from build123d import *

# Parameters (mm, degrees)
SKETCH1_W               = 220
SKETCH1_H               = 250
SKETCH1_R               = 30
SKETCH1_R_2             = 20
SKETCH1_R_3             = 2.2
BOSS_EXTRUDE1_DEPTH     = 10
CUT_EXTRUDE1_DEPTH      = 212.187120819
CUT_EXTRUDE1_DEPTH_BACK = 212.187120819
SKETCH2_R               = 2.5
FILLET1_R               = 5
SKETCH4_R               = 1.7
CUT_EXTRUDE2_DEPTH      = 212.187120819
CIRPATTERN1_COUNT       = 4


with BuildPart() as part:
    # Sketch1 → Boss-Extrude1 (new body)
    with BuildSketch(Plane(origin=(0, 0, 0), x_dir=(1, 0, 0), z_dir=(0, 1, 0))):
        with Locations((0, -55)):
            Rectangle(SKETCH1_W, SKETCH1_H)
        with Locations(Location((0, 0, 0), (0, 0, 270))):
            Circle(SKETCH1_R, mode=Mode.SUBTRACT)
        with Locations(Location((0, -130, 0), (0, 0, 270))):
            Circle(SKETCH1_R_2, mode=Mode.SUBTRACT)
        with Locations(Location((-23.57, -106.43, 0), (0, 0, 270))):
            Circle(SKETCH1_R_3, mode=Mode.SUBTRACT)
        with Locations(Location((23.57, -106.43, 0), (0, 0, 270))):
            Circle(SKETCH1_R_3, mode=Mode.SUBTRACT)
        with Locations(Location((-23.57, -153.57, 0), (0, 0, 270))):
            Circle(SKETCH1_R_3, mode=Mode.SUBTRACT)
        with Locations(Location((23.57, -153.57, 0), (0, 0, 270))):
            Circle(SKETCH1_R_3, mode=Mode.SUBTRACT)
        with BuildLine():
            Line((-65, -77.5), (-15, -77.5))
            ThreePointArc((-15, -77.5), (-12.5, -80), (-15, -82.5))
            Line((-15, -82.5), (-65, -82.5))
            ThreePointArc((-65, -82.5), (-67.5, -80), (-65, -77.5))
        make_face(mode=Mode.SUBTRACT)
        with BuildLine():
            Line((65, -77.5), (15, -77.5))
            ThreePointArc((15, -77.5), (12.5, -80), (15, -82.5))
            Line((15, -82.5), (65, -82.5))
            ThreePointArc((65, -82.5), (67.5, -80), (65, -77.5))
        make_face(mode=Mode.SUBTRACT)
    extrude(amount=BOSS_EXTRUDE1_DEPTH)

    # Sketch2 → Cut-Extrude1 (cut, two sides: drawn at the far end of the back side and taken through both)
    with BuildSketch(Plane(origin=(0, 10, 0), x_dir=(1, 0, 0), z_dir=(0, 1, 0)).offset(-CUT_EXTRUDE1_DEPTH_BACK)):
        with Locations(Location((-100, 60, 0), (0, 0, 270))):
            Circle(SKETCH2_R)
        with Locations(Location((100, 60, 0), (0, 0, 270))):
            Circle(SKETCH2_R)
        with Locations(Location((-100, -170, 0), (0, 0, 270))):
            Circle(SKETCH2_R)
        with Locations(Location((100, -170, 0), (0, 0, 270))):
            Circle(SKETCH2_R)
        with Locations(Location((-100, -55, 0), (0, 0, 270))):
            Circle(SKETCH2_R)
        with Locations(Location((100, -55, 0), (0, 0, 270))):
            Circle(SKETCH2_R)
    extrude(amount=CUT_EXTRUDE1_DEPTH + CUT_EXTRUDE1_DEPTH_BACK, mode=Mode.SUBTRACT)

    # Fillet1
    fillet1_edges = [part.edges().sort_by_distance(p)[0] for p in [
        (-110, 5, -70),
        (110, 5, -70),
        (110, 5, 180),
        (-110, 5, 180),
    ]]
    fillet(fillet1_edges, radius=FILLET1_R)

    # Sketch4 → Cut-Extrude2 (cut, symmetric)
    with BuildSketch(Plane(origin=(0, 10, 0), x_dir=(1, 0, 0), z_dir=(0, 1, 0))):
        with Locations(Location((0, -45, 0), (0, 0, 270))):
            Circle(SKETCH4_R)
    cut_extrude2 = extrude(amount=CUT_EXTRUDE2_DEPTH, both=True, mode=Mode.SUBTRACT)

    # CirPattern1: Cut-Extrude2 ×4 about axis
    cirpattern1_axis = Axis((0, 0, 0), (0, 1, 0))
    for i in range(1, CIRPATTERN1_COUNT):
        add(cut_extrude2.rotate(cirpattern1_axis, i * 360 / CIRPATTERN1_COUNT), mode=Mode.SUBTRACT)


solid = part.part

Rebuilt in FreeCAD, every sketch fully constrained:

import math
import FreeCAD as App
import Part
import Sketcher

V = App.Vector
Q = App.Units.Quantity


def edges_at(feature, points):
    """Names of the edges that pass closest to the given points."""
    edges = feature.Shape.Edges
    near = lambda p: min(range(len(edges)), key=lambda i: edges[i].distToShape(Part.Vertex(*p))[0])
    return sorted({f"Edge{near(p) + 1}" for p in points})


def add_polygon(sketch, points):
    """Adds a closed chain of lines whose ends are joined by coincident constraints."""
    first, n = sketch.GeometryCount, len(points)
    for a, b in zip(points, points[1:] + points[:1]):
        sketch.addGeometry(Part.LineSegment(App.Vector(*a, 0), App.Vector(*b, 0)), False)
    for i in range(n):
        sketch.addConstraint(Sketcher.Constraint("Coincident", first + i, 2, first + (i + 1) % n, 1))

doc = App.newDocument("Part")
params = doc.addObject("Spreadsheet::Sheet", "Params")
for row, (alias, value) in enumerate([
    ("sketch1_diameter", "40 mm"),
    ("sketch1_diameter2", "60 mm"),
    ("sketch1_diameter3", "4.4 mm"),
    ("sketch1_radius", "2.5 mm"),
    ("sketch1_width", "220 mm"),
    ("pad1_length", "10 mm"),
    ("sketch2_diameter", "5 mm"),
    ("fillet_radius", "5 mm"),
    ("sketch3_diameter", "3.4 mm"),
    ("pocket2_length", "424.374242 mm"),
], start=1):
    params.set(f"A{row}", alias)
    params.set(f"B{row}", "=" + value)
    params.setAlias(f"B{row}", alias)

body = doc.addObject("PartDesign::Body", "Body")

# Sketch on XZ plane
sketch1 = body.newObject("Sketcher::SketchObject", "Sketch")
sketch1.AttachmentSupport = (doc.getObject("XZ_Plane"), [""])
sketch1.MapMode = "FlatFace"
add_polygon(sketch1, [(-110, -70), (-110, 180), (110, 180), (110, -70)])  # lines 0-3
sketch1.addGeometry(Part.Circle(V(-23.6, 153.6, 0), V(0, 0, 1), 2.2), False)  # 4
sketch1.addGeometry(Part.ArcOfCircle(Part.Circle(V(-65, 80, 0), V(0, 0, 1), 2.5), math.radians(90), math.radians(270)), False)  # 5
sketch1.addGeometry(Part.LineSegment(V(-65, 77.5, 0), V(-15, 77.5, 0)), False)  # 6
sketch1.addGeometry(Part.ArcOfCircle(Part.Circle(V(-15, 80, 0), V(0, 0, 1), 2.5), math.radians(-90), math.radians(90)), False)  # 7
sketch1.addGeometry(Part.LineSegment(V(-15, 82.5, 0), V(-65, 82.5, 0)), False)  # 8
sketch1.addGeometry(Part.Circle(V(-23.6, 106.4, 0), V(0, 0, 1), 2.2), False)  # 9
sketch1.addGeometry(Part.Circle(V(23.6, 153.6, 0), V(0, 0, 1), 2.2), False)  # 10
sketch1.addGeometry(Part.Circle(V(0, 130, 0), V(0, 0, 1), 20), False)  # 11
sketch1.addGeometry(Part.Circle(V(23.6, 106.4, 0), V(0, 0, 1), 2.2), False)  # 12
sketch1.addGeometry(Part.LineSegment(V(15, 77.5, 0), V(65, 77.5, 0)), False)  # 13
sketch1.addGeometry(Part.ArcOfCircle(Part.Circle(V(65, 80, 0), V(0, 0, 1), 2.5), math.radians(-90), math.radians(90)), False)  # 14
sketch1.addGeometry(Part.LineSegment(V(65, 82.5, 0), V(15, 82.5, 0)), False)  # 15
sketch1.addGeometry(Part.ArcOfCircle(Part.Circle(V(15, 80, 0), V(0, 0, 1), 2.5), math.radians(90), math.radians(270)), False)  # 16
sketch1.addGeometry(Part.Circle(V(0, 0, 0), V(0, 0, 1), 30), False)  # 17
sketch1.addConstraint(Sketcher.Constraint("Tangent", 5, 2, 6, 1))
sketch1.addConstraint(Sketcher.Constraint("Tangent", 6, 2, 7, 1))
sketch1.addConstraint(Sketcher.Constraint("Tangent", 7, 2, 8, 1))
sketch1.addConstraint(Sketcher.Constraint("Tangent", 8, 2, 5, 1))
sketch1.addConstraint(Sketcher.Constraint("Tangent", 13, 2, 14, 1))
sketch1.addConstraint(Sketcher.Constraint("Tangent", 14, 2, 15, 1))
sketch1.addConstraint(Sketcher.Constraint("Tangent", 15, 2, 16, 1))
sketch1.addConstraint(Sketcher.Constraint("Tangent", 16, 2, 13, 1))
sketch1.addConstraint(Sketcher.Constraint("Vertical", 0))
sketch1.addConstraint(Sketcher.Constraint("Horizontal", 1))
sketch1.addConstraint(Sketcher.Constraint("Vertical", 2))
sketch1.addConstraint(Sketcher.Constraint("Horizontal", 3))
sketch1.addConstraint(Sketcher.Constraint("Horizontal", 6))
sketch1.addConstraint(Sketcher.Constraint("Horizontal", 8))
sketch1.addConstraint(Sketcher.Constraint("Horizontal", 13))
sketch1.addConstraint(Sketcher.Constraint("Horizontal", 15))
sketch1.addConstraint(Sketcher.Constraint("Coincident", 17, 3, -1, 1))
sketch1.addConstraint(Sketcher.Constraint("Equal", 4, 9))
sketch1.addConstraint(Sketcher.Constraint("Equal", 9, 10))
sketch1.addConstraint(Sketcher.Constraint("Equal", 10, 12))
sketch1.addConstraint(Sketcher.Constraint("Equal", 7, 14))
sketch1.addConstraint(Sketcher.Constraint("Symmetric", 4, 3, 10, 3, -2))
sketch1.addConstraint(Sketcher.Constraint("Symmetric", 9, 3, 12, 3, -2))
sketch1.addConstraint(Sketcher.Constraint("Symmetric", 5, 3, 14, 3, -2))
sketch1.addConstraint(Sketcher.Constraint("PointOnObject", 11, 3, -2))
sketch1.addConstraint(Sketcher.Constraint("Vertical", 4, 3, 9, 3))
sketch1.addConstraint(Sketcher.Constraint("Equal", 8, 13))
sketch1.addConstraint(Sketcher.Constraint("Diameter", 11, Q("40 mm")))
sketch1.addConstraint(Sketcher.Constraint("Diameter", 17, Q("60 mm")))
sketch1.addConstraint(Sketcher.Constraint("Diameter", 4, Q("4.4 mm")))
sketch1.addConstraint(Sketcher.Constraint("Radius", 5, Q("2.5 mm")))
sketch1.addConstraint(Sketcher.Constraint("DistanceX", 1, 1, 1, 2, Q("220 mm")))
sketch1.addConstraint(Sketcher.Constraint("DistanceX", 6, 1, 6, 2, Q("50 mm")))
sketch1.addConstraint(Sketcher.Constraint("DistanceY", 0, 1, 0, 2, Q("250 mm")))
sketch1.addConstraint(Sketcher.Constraint("DistanceX", 5, 3, -1, 1, Q("65 mm")))
sketch1.addConstraint(Sketcher.Constraint("DistanceY", -1, 1, 5, 3, Q("80 mm")))
sketch1.addConstraint(Sketcher.Constraint("DistanceY", -1, 1, 11, 3, Q("130 mm")))
sketch1.addConstraint(Sketcher.Constraint("DistanceX", 0, 2, -1, 1, Q("110 mm")))
sketch1.addConstraint(Sketcher.Constraint("DistanceY", -1, 1, 0, 2, Q("180 mm")))
sketch1.addConstraint(Sketcher.Constraint("DistanceX", 4, 3, -1, 1, Q("23.57 mm")))
sketch1.addConstraint(Sketcher.Constraint("DistanceY", -1, 1, 4, 3, Q("153.57 mm")))
sketch1.addConstraint(Sketcher.Constraint("DistanceY", -1, 1, 9, 3, Q("106.43 mm")))
sketch1.setExpression("Constraints[31]", "Params.sketch1_diameter")
sketch1.setExpression("Constraints[32]", "Params.sketch1_diameter2")
sketch1.setExpression("Constraints[33]", "Params.sketch1_diameter3")
sketch1.setExpression("Constraints[34]", "Params.sketch1_radius")
sketch1.setExpression("Constraints[35]", "Params.sketch1_width")
pad1 = body.newObject("PartDesign::Pad", "Pad")
pad1.Profile = sketch1
pad1.setExpression("Length", "Params.pad1_length")
pad1.Reversed = True

# Sketch on XZ plane
sketch2 = body.newObject("Sketcher::SketchObject", "Sketch001")
sketch2.AttachmentSupport = (doc.getObject("XZ_Plane"), [""])
sketch2.MapMode = "FlatFace"
sketch2.AttachmentOffset = App.Placement(V(0, 0, -10), App.Rotation())
sketch2.addGeometry(Part.Circle(V(-100, -60, 0), V(0, 0, 1), 2.5), False)
sketch2.addGeometry(Part.Circle(V(100, -60, 0), V(0, 0, 1), 2.5), False)
sketch2.addGeometry(Part.Circle(V(-100, 170, 0), V(0, 0, 1), 2.5), False)
sketch2.addGeometry(Part.Circle(V(100, 170, 0), V(0, 0, 1), 2.5), False)
sketch2.addGeometry(Part.Circle(V(-100, 55, 0), V(0, 0, 1), 2.5), False)
sketch2.addGeometry(Part.Circle(V(100, 55, 0), V(0, 0, 1), 2.5), False)
sketch2.addConstraint(Sketcher.Constraint("Equal", 0, 1))
sketch2.addConstraint(Sketcher.Constraint("Equal", 1, 2))
sketch2.addConstraint(Sketcher.Constraint("Equal", 2, 3))
sketch2.addConstraint(Sketcher.Constraint("Equal", 3, 4))
sketch2.addConstraint(Sketcher.Constraint("Equal", 4, 5))
sketch2.addConstraint(Sketcher.Constraint("Symmetric", 0, 3, 1, 3, -2))
sketch2.addConstraint(Sketcher.Constraint("Symmetric", 2, 3, 3, 3, -2))
sketch2.addConstraint(Sketcher.Constraint("Symmetric", 4, 3, 5, 3, -2))
sketch2.addConstraint(Sketcher.Constraint("Vertical", 0, 3, 2, 3))
sketch2.addConstraint(Sketcher.Constraint("Vertical", 2, 3, 4, 3))
sketch2.addConstraint(Sketcher.Constraint("Diameter", 0, Q("5 mm")))
sketch2.addConstraint(Sketcher.Constraint("DistanceX", 0, 3, -1, 1, Q("100 mm")))
sketch2.addConstraint(Sketcher.Constraint("DistanceY", 0, 3, -1, 1, Q("60 mm")))
sketch2.addConstraint(Sketcher.Constraint("DistanceY", -1, 1, 2, 3, Q("170 mm")))
sketch2.addConstraint(Sketcher.Constraint("DistanceY", -1, 1, 4, 3, Q("55 mm")))
sketch2.setExpression("Constraints[10]", "Params.sketch2_diameter")
pocket1 = body.newObject("PartDesign::Pocket", "Pocket")
pocket1.Profile = sketch2
pocket1.Type = "ThroughAll"
pocket1.Midplane = True
doc.recompute()

fillet = body.newObject("PartDesign::Fillet", "Fillet")
fillet.Base = (pocket1, edges_at(pocket1, [
    (-110, 5, -70),
    (110, 5, -70),
    (110, 5, 180),
    (-110, 5, 180),
]))
fillet.setExpression("Radius", "Params.fillet_radius")

# Sketch on XZ plane
sketch3 = body.newObject("Sketcher::SketchObject", "Sketch002")
sketch3.AttachmentSupport = (doc.getObject("XZ_Plane"), [""])
sketch3.MapMode = "FlatFace"
sketch3.AttachmentOffset = App.Placement(V(0, 0, -10), App.Rotation())
sketch3.addGeometry(Part.Circle(V(0, 45, 0), V(0, 0, 1), 1.7), False)
sketch3.addConstraint(Sketcher.Constraint("PointOnObject", 0, 3, -2))
sketch3.addConstraint(Sketcher.Constraint("Diameter", 0, Q("3.4 mm")))
sketch3.addConstraint(Sketcher.Constraint("DistanceY", -1, 1, 0, 3, Q("45 mm")))
sketch3.setExpression("Constraints[1]", "Params.sketch3_diameter")
pocket2 = body.newObject("PartDesign::Pocket", "Pocket001")
pocket2.Profile = sketch3
pocket2.setExpression("Length", "Params.pocket2_length")
pocket2.Midplane = True
doc.recompute()

polarpattern = body.newObject("PartDesign::PolarPattern", "PolarPattern")
polarpattern.Originals = [pocket2]
polarpattern.Axis = (doc.getObject("Y_Axis"), [""])
polarpattern.Angle = 360
polarpattern.Occurrences = 4
body.Tip = polarpattern

doc.recompute()
